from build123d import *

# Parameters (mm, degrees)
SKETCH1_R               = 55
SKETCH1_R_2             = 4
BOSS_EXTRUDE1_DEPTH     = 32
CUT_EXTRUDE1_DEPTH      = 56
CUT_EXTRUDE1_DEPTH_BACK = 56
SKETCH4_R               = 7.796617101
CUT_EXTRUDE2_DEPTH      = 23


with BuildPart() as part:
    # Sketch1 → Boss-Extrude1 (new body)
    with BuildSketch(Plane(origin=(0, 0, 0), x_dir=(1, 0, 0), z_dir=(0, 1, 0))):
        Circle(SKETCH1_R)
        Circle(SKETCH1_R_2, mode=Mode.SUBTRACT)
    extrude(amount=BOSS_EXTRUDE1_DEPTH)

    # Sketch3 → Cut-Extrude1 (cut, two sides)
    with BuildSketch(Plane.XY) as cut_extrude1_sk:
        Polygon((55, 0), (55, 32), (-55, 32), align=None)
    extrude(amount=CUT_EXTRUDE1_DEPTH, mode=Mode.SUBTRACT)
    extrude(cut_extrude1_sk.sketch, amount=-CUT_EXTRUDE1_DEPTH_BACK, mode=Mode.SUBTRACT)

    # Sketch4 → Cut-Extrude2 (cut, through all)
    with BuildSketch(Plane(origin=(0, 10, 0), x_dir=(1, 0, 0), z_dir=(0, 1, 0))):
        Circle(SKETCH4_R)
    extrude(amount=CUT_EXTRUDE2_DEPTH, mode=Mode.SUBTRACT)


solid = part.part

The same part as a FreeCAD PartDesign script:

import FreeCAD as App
import Part
import Sketcher


def add_polygon(sketch, points):
    """Adds a closed chain of lines whose ends are joined by coincident constraints."""
    first, n = sketch.GeometryCount, len(points)
    for a, b in zip(points, points[1:] + points[:1]):
        sketch.addGeometry(Part.LineSegment(App.Vector(*a, 0), App.Vector(*b, 0)), False)
    for i in range(n):
        sketch.addConstraint(Sketcher.Constraint("Coincident", first + i, 2, first + (i + 1) % n, 1))

doc = App.newDocument("Part")
body = doc.addObject("PartDesign::Body", "Body")

# Sketch on XZ plane
sketch1 = body.newObject("Sketcher::SketchObject", "Sketch")
sketch1.AttachmentSupport = (doc.getObject("XZ_Plane"), [""])
sketch1.MapMode = "FlatFace"
sketch1.addGeometry([
    Part.Circle(App.Vector(0, 0, 0), App.Vector(0, 0, 1), 55),
    Part.Circle(App.Vector(0, 0, 0), App.Vector(0, 0, 1), 4),
], False)
sketch1.addConstraint([
    Sketcher.Constraint("Coincident", 0, 3, -1, 1),
    Sketcher.Constraint("Coincident", 1, 3, -1, 1),
    Sketcher.Constraint("Diameter", 0, 110.0),
    Sketcher.Constraint("Diameter", 1, 8.0),
])
pad1 = body.newObject("PartDesign::Pad", "Pad")
pad1.Profile = sketch1
pad1.Length = 32
pad1.Reversed = True

# Sketch on XY plane
sketch2 = body.newObject("Sketcher::SketchObject", "Sketch001")
sketch2.AttachmentSupport = (doc.getObject("XY_Plane"), [""])
sketch2.MapMode = "FlatFace"
add_polygon(sketch2, [(55, 0), (55, 32), (-55, 32)])  # lines 0-2
sketch2.addConstraint([
    Sketcher.Constraint("Vertical", 0),
    Sketcher.Constraint("Horizontal", 1),
    Sketcher.Constraint("PointOnObject", 2, 2, -1),
    Sketcher.Constraint("DistanceX", 1, 2, 1, 1, 110.0),
    Sketcher.Constraint("DistanceY", 0, 1, 0, 2, 32.0),
    Sketcher.Constraint("DistanceX", -1, 1, 0, 2, 55.0),
])
pocket1 = body.newObject("PartDesign::Pocket", "Pocket")
pocket1.Profile = sketch2
pocket1.Type = "ThroughAll"
pocket1.Midplane = True

# Sketch on XZ plane
sketch3 = body.newObject("Sketcher::SketchObject", "Sketch002")
sketch3.AttachmentSupport = (doc.getObject("XZ_Plane"), [""])
sketch3.MapMode = "FlatFace"
sketch3.AttachmentOffset = App.Placement(App.Vector(0, 0, -10), App.Rotation())
sketch3.addGeometry(Part.Circle(App.Vector(0, 0, 0), App.Vector(0, 0, 1), 8), False)
sketch3.addConstraint([
    Sketcher.Constraint("Coincident", 0, 3, -1, 1),
    Sketcher.Constraint("Diameter", 0, 15.593234),
])
pocket2 = body.newObject("PartDesign::Pocket", "Pocket001")
pocket2.Profile = sketch3
pocket2.Type = "ThroughAll"

doc.recompute()
